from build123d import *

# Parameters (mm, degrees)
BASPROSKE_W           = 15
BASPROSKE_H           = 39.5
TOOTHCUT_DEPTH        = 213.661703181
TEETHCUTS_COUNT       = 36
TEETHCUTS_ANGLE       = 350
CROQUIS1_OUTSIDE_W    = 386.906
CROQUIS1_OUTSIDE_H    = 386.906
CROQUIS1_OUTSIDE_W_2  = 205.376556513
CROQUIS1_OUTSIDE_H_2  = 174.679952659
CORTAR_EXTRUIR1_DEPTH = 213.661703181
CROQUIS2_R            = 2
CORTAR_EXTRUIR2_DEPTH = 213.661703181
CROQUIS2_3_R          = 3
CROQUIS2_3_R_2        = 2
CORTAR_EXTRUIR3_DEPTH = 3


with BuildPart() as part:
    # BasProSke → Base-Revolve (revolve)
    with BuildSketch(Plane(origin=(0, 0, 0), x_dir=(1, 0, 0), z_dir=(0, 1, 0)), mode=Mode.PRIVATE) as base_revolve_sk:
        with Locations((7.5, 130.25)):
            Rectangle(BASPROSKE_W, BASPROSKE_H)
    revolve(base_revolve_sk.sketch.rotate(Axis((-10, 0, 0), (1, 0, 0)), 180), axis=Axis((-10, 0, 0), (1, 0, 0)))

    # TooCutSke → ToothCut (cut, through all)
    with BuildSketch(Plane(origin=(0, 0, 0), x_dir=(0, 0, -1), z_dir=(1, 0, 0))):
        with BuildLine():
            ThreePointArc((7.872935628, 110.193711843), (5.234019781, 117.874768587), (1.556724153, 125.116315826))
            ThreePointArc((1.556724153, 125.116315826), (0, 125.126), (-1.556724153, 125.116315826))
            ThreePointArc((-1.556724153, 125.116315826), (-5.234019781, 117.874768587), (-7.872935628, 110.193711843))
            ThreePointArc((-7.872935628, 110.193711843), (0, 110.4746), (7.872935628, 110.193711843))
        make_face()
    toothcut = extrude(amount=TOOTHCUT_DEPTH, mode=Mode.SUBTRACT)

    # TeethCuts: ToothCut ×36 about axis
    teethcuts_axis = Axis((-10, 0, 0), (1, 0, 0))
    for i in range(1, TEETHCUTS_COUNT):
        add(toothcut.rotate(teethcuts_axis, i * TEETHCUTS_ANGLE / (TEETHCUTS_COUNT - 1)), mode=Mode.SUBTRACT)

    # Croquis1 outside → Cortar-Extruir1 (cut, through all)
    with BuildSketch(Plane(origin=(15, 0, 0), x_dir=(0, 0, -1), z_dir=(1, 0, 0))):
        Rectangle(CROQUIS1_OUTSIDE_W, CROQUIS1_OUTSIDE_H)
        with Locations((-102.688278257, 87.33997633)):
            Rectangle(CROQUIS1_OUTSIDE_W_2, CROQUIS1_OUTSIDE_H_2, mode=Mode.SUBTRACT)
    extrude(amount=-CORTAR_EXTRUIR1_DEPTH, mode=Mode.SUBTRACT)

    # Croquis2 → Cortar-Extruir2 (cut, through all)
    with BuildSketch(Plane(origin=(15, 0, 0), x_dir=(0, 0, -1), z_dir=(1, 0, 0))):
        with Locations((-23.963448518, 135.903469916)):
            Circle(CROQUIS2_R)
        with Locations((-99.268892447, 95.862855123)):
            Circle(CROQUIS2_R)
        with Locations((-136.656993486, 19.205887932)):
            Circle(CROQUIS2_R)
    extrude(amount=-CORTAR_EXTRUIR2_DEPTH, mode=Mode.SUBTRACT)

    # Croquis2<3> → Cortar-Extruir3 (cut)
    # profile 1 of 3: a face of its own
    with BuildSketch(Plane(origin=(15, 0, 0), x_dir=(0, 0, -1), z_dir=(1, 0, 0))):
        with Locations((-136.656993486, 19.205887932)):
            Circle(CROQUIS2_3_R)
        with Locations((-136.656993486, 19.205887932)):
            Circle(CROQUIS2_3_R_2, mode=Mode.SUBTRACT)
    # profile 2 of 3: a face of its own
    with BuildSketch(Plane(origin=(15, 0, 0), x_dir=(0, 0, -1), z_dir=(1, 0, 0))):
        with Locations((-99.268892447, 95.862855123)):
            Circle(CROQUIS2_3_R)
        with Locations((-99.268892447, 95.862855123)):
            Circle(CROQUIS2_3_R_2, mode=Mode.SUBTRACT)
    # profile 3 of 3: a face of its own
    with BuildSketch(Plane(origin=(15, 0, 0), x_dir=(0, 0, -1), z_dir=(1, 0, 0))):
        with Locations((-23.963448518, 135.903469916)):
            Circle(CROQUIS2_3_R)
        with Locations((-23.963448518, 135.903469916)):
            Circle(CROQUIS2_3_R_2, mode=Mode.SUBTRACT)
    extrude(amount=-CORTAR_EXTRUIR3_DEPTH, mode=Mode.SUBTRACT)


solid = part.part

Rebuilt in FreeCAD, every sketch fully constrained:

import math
import FreeCAD as App
import Part
import Sketcher

V = App.Vector
Q = App.Units.Quantity

doc = App.newDocument("Part")
body = doc.addObject("PartDesign::Body", "Body")

# Sketch on XZ plane
sketch1 = body.newObject("Sketcher::SketchObject", "Sketch")
sketch1.AttachmentSupport = (doc.getObject("XZ_Plane"), [""])
sketch1.MapMode = "FlatFace"
sketch1.addGeometry(Part.LineSegment(V(0, -150, 0), V(0, -110, 0)), False)
sketch1.addGeometry(Part.LineSegment(V(0, -110, 0), V(15, -110, 0)), False)
sketch1.addGeometry(Part.LineSegment(V(15, -110, 0), V(15, -150, 0)), False)
sketch1.addGeometry(Part.LineSegment(V(15, -150, 0), V(0, -150, 0)), False)
sketch1.addConstraint(Sketcher.Constraint("Coincident", 0, 2, 1, 1))
sketch1.addConstraint(Sketcher.Constraint("Coincident", 1, 2, 2, 1))
sketch1.addConstraint(Sketcher.Constraint("Coincident", 2, 2, 3, 1))
sketch1.addConstraint(Sketcher.Constraint("Coincident", 3, 2, 0, 1))
sketch1.addConstraint(Sketcher.Constraint("Vertical", 0))
sketch1.addConstraint(Sketcher.Constraint("Horizontal", 1))
sketch1.addConstraint(Sketcher.Constraint("Vertical", 2))
sketch1.addConstraint(Sketcher.Constraint("Horizontal", 3))
sketch1.addConstraint(Sketcher.Constraint("PointOnObject", 0, 2, -2))
sketch1.addConstraint(Sketcher.Constraint("DistanceX", 1, 1, 1, 2, Q("15 mm")))
sketch1.addConstraint(Sketcher.Constraint("DistanceY", 0, 1, 0, 2, Q("39.5 mm")))
sketch1.addConstraint(Sketcher.Constraint("DistanceY", 2, 2, -1, 1, Q("150 mm")))
revolution = body.newObject("PartDesign::Revolution", "Revolution")
revolution.Profile = sketch1
revolution.ReferenceAxis = (sketch1, ["H_Axis"])
revolution.Angle = 360

# Sketch on YZ plane
sketch2 = body.newObject("Sketcher::SketchObject", "Sketch001")
sketch2.AttachmentSupport = (doc.getObject("YZ_Plane"), [""])
sketch2.MapMode = "FlatFace"
sketch2.addGeometry(Part.ArcOfCircle(Part.Circle(V(95.1, 48.6, 0), V(0, 0, 1), 58.5), math.radians(-75.02), math.radians(-59.1)), False)
sketch2.addGeometry(Part.ArcOfCircle(Part.Circle(V(0, 0, 0), V(0, 0, 1), 125.1), math.radians(-0.71), math.radians(0.71)), False)
sketch2.addGeometry(Part.ArcOfCircle(Part.Circle(V(95.1, -48.6, 0), V(0, 0, 1), 58.5), math.radians(59.1), math.radians(75.02)), False)
sketch2.addGeometry(Part.ArcOfCircle(Part.Circle(V(0, 0, 0), V(0, 0, 1), 110.5), math.radians(-4.09), math.radians(4.09)), False)
sketch2.addConstraint(Sketcher.Constraint("Coincident", 0, 2, 1, 1))
sketch2.addConstraint(Sketcher.Constraint("Coincident", 1, 2, 2, 1))
sketch2.addConstraint(Sketcher.Constraint("Coincident", 2, 2, 3, 2))
sketch2.addConstraint(Sketcher.Constraint("Coincident", 3, 1, 0, 1))
sketch2.addConstraint(Sketcher.Constraint("Coincident", 1, 3, -1, 1))
sketch2.addConstraint(Sketcher.Constraint("Coincident", 3, 3, -1, 1))
sketch2.addConstraint(Sketcher.Constraint("Equal", 0, 2))
sketch2.addConstraint(Sketcher.Constraint("Symmetric", 0, 3, 2, 3, -1))
sketch2.addConstraint(Sketcher.Constraint("Radius", 0, Q("58.5 mm")))
sketch2.addConstraint(Sketcher.Constraint("Radius", 3, Q("110.4746 mm")))
sketch2.addConstraint(Sketcher.Constraint("Radius", 1, Q("125.125998 mm")))
sketch2.addConstraint(Sketcher.Constraint("DistanceX", -1, 1, 0, 3, Q("95.072249 mm")))
sketch2.addConstraint(Sketcher.Constraint("DistanceX", -1, 1, 3, 1, Q("110.193712 mm")))
pocket1 = body.newObject("PartDesign::Pocket", "Pocket")
pocket1.Profile = sketch2
pocket1.Type = "ThroughAll"
pocket1.Reversed = True
doc.recompute()

polarpattern = body.newObject("PartDesign::PolarPattern", "PolarPattern")
polarpattern.Originals = [pocket1]
polarpattern.Axis = (doc.getObject("X_Axis"), [""])
polarpattern.Angle = 360
polarpattern.Occurrences = 36
body.Tip = polarpattern

# Sketch on YZ plane
sketch3 = body.newObject("Sketcher::SketchObject", "Sketch002")
sketch3.AttachmentSupport = (doc.getObject("YZ_Plane"), [""])
sketch3.MapMode = "FlatFace"
sketch3.AttachmentOffset = App.Placement(V(0, 0, 15), App.Rotation())
sketch3.addGeometry(Part.LineSegment(V(0, 193, 0), V(-193, 193, 0)), False)
sketch3.addGeometry(Part.LineSegment(V(-193, 193, 0), V(-193, -193, 0)), False)
sketch3.addGeometry(Part.LineSegment(V(-193, -193, 0), V(193, -193, 0)), False)
sketch3.addGeometry(Part.LineSegment(V(193, -193, 0), V(193, 193, 0)), False)
sketch3.addGeometry(Part.LineSegment(V(193, 193, 0), V(175, 193, 0)), False)
sketch3.addGeometry(Part.LineSegment(V(175, 193, 0), V(175, 0, 0)), False)
sketch3.addGeometry(Part.LineSegment(V(175, 0, 0), V(0, 0, 0)), False)
sketch3.addGeometry(Part.LineSegment(V(0, 0, 0), V(0, 193, 0)), False)
sketch3.addConstraint(Sketcher.Constraint("Coincident", 0, 2, 1, 1))
sketch3.addConstraint(Sketcher.Constraint("Coincident", 1, 2, 2, 1))
sketch3.addConstraint(Sketcher.Constraint("Coincident", 2, 2, 3, 1))
sketch3.addConstraint(Sketcher.Constraint("Coincident", 3, 2, 4, 1))
sketch3.addConstraint(Sketcher.Constraint("Coincident", 4, 2, 5, 1))
sketch3.addConstraint(Sketcher.Constraint("Coincident", 5, 2, 6, 1))
sketch3.addConstraint(Sketcher.Constraint("Coincident", 6, 2, 7, 1))
sketch3.addConstraint(Sketcher.Constraint("Coincident", 7, 2, 0, 1))
sketch3.addConstraint(Sketcher.Constraint("Horizontal", 0))
sketch3.addConstraint(Sketcher.Constraint("Vertical", 1))
sketch3.addConstraint(Sketcher.Constraint("Horizontal", 2))
sketch3.addConstraint(Sketcher.Constraint("Vertical", 3))
sketch3.addConstraint(Sketcher.Constraint("Horizontal", 4))
sketch3.addConstraint(Sketcher.Constraint("Vertical", 5))
sketch3.addConstraint(Sketcher.Constraint("Horizontal", 6))
sketch3.addConstraint(Sketcher.Constraint("Vertical", 7))
sketch3.addConstraint(Sketcher.Constraint("Coincident", 6, 2, -1, 1))
sketch3.addConstraint(Sketcher.Constraint("Symmetric", 0, 2, 2, 2, -1, 1))
sketch3.addConstraint(Sketcher.Constraint("Horizontal", 0, 2, 3, 2))
sketch3.addConstraint(Sketcher.Constraint("Equal", 2, 1))
sketch3.addConstraint(Sketcher.Constraint("DistanceX", 0, 2, 0, 1, Q("193.453 mm")))
sketch3.addConstraint(Sketcher.Constraint("DistanceX", 4, 2, 4, 1, Q("18.773047 mm")))
pocket2 = body.newObject("PartDesign::Pocket", "Pocket001")
pocket2.Profile = sketch3
pocket2.Type = "ThroughAll"

# Sketch on YZ plane
sketch4 = body.newObject("Sketcher::SketchObject", "Sketch003")
sketch4.AttachmentSupport = (doc.getObject("YZ_Plane"), [""])
sketch4.MapMode = "FlatFace"
sketch4.AttachmentOffset = App.Placement(V(0, 0, 15), App.Rotation())
sketch4.addGeometry(Part.Circle(V(135.9, 24, 0), V(0, 0, 1), 2), False)
sketch4.addGeometry(Part.Circle(V(95.9, 99.3, 0), V(0, 0, 1), 2), False)
sketch4.addGeometry(Part.Circle(V(19.2, 136.7, 0), V(0, 0, 1), 2), False)
sketch4.addConstraint(Sketcher.Constraint("Equal", 0, 1))
sketch4.addConstraint(Sketcher.Constraint("Equal", 1, 2))
sketch4.addConstraint(Sketcher.Constraint("Diameter", 0, Q("4 mm")))
sketch4.addConstraint(Sketcher.Constraint("DistanceY", 1, 3, 2, 3, Q("37.388101 mm")))
sketch4.addConstraint(Sketcher.Constraint("DistanceX", -1, 1, 0, 3, Q("135.90347 mm")))
sketch4.addConstraint(Sketcher.Constraint("DistanceY", -1, 1, 0, 3, Q("23.963449 mm")))
sketch4.addConstraint(Sketcher.Constraint("DistanceX", 2, 3, 0, 3, Q("116.697582 mm")))
sketch4.addConstraint(Sketcher.Constraint("DistanceX", -1, 1, 1, 3, Q("95.862855 mm")))
sketch4.addConstraint(Sketcher.Constraint("DistanceY", -1, 1, 1, 3, Q("99.268892 mm")))
pocket3 = body.newObject("PartDesign::Pocket", "Pocket002")
pocket3.Profile = sketch4
pocket3.Type = "ThroughAll"

# Sketch on YZ plane
sketch5 = body.newObject("Sketcher::SketchObject", "Sketch004")
sketch5.AttachmentSupport = (doc.getObject("YZ_Plane"), [""])
sketch5.MapMode = "FlatFace"
sketch5.AttachmentOffset = App.Placement(V(0, 0, 15), App.Rotation())
sketch5.addGeometry(Part.Circle(V(19.2, 136.7, 0), V(0, 0, 1), 3), False)
sketch5.addGeometry(Part.Circle(V(19.2, 136.7, 0), V(0, 0, 1), 2), False)
sketch5.addGeometry(Part.Circle(V(95.9, 99.3, 0), V(0, 0, 1), 3), False)
sketch5.addGeometry(Part.Circle(V(95.9, 99.3, 0), V(0, 0, 1), 2), False)
sketch5.addGeometry(Part.Circle(V(135.9, 24, 0), V(0, 0, 1), 3), False)
sketch5.addGeometry(Part.Circle(V(135.9, 24, 0), V(0, 0, 1), 2), False)
sketch5.addConstraint(Sketcher.Constraint("Coincident", 1, 3, 0, 3))
sketch5.addConstraint(Sketcher.Constraint("Coincident", 3, 3, 2, 3))
sketch5.addConstraint(Sketcher.Constraint("Coincident", 5, 3, 4, 3))
sketch5.addConstraint(Sketcher.Constraint("Equal", 0, 2))
sketch5.addConstraint(Sketcher.Constraint("Equal", 1, 3))
sketch5.addConstraint(Sketcher.Constraint("Equal", 2, 4))
sketch5.addConstraint(Sketcher.Constraint("Equal", 3, 5))
sketch5.addConstraint(Sketcher.Constraint("Diameter", 0, Q("6 mm")))
sketch5.addConstraint(Sketcher.Constraint("Diameter", 1, Q("4 mm")))
sketch5.addConstraint(Sketcher.Constraint("DistanceY", 2, 3, 0, 3, Q("37.388101 mm")))
sketch5.addConstraint(Sketcher.Constraint("DistanceX", -1, 1, 4, 3, Q("135.90347 mm")))
sketch5.addConstraint(Sketcher.Constraint("DistanceY", -1, 1, 4, 3, Q("23.963449 mm")))
sketch5.addConstraint(Sketcher.Constraint("DistanceX", 0, 3, 4, 3, Q("116.697582 mm")))
sketch5.addConstraint(Sketcher.Constraint("DistanceY", -1, 1, 0, 3, Q("136.656993 mm")))
sketch5.addConstraint(Sketcher.Constraint("DistanceX", -1, 1, 2, 3, Q("95.862855 mm")))
pocket4 = body.newObject("PartDesign::Pocket", "Pocket003")
pocket4.Profile = sketch5
pocket4.Length = 3

doc.recompute()
